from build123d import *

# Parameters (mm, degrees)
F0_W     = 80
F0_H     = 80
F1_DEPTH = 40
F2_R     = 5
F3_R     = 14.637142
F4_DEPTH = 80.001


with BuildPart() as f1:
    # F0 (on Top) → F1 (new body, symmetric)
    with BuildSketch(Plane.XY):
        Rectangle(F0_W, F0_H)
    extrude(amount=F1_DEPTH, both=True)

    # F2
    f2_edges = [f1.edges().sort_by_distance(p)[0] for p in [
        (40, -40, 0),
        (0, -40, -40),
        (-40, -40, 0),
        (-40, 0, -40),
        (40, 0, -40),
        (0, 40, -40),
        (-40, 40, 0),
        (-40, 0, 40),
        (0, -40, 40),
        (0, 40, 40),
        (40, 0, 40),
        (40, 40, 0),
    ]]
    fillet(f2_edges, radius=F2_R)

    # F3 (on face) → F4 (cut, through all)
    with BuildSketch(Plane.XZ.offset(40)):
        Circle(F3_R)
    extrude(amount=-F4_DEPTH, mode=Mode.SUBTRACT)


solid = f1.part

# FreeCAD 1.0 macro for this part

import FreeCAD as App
import Part
import Sketcher

V = App.Vector


def add_polygon(sketch, points):
    """Adds a closed chain of lines whose ends are joined by coincident constraints."""
    first, n = sketch.GeometryCount, len(points)
    for a, b in zip(points, points[1:] + points[:1]):
        sketch.addGeometry(Part.LineSegment(App.Vector(*a, 0), App.Vector(*b, 0)), False)
    for i in range(n):
        sketch.addConstraint(Sketcher.Constraint("Coincident", first + i, 2, first + (i + 1) % n, 1))

doc = App.newDocument("Part")
params = doc.addObject("Spreadsheet::Sheet", "Params")
for row, (alias, value) in enumerate([
    ("sketch1_width", "80 mm"),
    ("pad1_length", "80 mm"),
    ("fillet_radius", "5 mm"),
], start=1):
    params.set(f"A{row}", alias)
    params.set(f"B{row}", "=" + value)
    params.setAlias(f"B{row}", alias)

body = doc.addObject("PartDesign::Body", "Body")

# Sketch on XY plane
sketch1 = body.newObject("Sketcher::SketchObject", "Sketch")
sketch1.AttachmentSupport = (doc.getObject("XY_Plane"), [""])
sketch1.MapMode = "FlatFace"
add_polygon(sketch1, [(-40, 40), (-40, -40), (40, -40), (40, 40)])  # lines 0-3
sketch1.addConstraint(Sketcher.Constraint("Vertical", 0))
sketch1.addConstraint(Sketcher.Constraint("Horizontal", 1))
sketch1.addConstraint(Sketcher.Constraint("Vertical", 2))
sketch1.addConstraint(Sketcher.Constraint("Horizontal", 3))
sketch1.addConstraint(Sketcher.Constraint("Symmetric", 0, 2, 2, 2, -1, 1))
sketch1.addConstraint(Sketcher.Constraint("Equal", 3, 0))
sketch1.addConstraint(Sketcher.Constraint("DistanceX", 1, 1, 1, 2, 80.0))
sketch1.setExpression("Constraints[10]", "Params.sketch1_width")
pad1 = body.newObject("PartDesign::Pad", "Pad")
pad1.Profile = sketch1
pad1.setExpression("Length", "Params.pad1_length")
pad1.Midplane = True
doc.recompute()

fillet = body.newObject("PartDesign::Fillet", "Fillet")
fillet.Base = (pad1, ["Edge1"])
fillet.UseAllEdges = True
fillet.setExpression("Radius", "Params.fillet_radius")

# Sketch on XZ plane
sketch2 = body.newObject("Sketcher::SketchObject", "Sketch001")
sketch2.AttachmentSupport = (doc.getObject("XZ_Plane"), [""])
sketch2.MapMode = "FlatFace"
sketch2.AttachmentOffset = App.Placement(V(0, 0, 40), App.Rotation())
sketch2.addGeometry(Part.Circle(V(0, 0, 0), V(0, 0, 1), 14.637142), False)
sketch2.addConstraint(Sketcher.Constraint("Coincident", 0, 3, -1, 1))
sketch2.addConstraint(Sketcher.Constraint("Diameter", 0, 29.274284))
pocket1 = body.newObject("PartDesign::Pocket", "Pocket")
pocket1.Profile = sketch2
pocket1.Type = "ThroughAll"

doc.recompute()
